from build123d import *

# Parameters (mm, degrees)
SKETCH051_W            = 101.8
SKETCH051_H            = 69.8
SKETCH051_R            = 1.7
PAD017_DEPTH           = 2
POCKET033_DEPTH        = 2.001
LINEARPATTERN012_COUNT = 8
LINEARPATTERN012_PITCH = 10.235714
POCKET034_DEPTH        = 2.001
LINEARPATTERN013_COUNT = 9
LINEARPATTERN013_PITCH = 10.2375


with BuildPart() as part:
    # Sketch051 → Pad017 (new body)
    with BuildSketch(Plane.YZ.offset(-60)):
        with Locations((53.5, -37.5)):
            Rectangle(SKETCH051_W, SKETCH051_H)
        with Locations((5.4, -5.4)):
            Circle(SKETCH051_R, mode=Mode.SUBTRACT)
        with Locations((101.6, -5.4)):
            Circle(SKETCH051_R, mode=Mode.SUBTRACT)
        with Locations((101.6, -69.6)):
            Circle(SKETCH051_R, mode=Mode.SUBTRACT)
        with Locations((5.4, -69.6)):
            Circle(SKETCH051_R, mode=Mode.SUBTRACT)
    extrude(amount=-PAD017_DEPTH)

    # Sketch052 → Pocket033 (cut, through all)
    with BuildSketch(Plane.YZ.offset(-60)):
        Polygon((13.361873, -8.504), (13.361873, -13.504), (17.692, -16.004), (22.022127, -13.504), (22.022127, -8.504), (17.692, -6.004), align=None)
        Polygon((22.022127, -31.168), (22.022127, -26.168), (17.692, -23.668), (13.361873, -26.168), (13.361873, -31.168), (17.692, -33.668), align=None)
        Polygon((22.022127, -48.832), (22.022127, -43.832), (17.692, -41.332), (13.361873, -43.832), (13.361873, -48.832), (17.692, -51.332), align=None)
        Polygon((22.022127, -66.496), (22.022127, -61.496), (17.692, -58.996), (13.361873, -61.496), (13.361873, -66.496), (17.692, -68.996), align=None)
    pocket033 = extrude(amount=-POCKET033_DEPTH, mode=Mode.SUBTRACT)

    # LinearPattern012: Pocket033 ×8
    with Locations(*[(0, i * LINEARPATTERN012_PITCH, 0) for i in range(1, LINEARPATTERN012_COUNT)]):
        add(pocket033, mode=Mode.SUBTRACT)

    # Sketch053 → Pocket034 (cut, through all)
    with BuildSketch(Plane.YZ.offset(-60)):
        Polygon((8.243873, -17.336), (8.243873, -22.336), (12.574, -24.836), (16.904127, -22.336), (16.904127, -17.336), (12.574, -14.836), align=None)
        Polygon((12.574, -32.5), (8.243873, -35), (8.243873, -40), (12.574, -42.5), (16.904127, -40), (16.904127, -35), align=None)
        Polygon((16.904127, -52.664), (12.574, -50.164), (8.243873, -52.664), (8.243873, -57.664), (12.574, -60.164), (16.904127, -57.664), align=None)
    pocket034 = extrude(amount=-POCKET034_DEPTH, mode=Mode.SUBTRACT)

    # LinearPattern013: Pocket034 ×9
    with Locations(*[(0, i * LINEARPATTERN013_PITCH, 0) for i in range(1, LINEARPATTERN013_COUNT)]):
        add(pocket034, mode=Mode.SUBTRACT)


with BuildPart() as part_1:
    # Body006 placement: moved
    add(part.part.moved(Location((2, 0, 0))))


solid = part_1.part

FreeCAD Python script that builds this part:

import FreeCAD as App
import Part
import Sketcher
from FreeCAD import Vector
Q = App.Units.Quantity

doc = App.newDocument("Part")
body = doc.addObject("PartDesign::Body", "Body")

# Sketch on YZ plane
sketch1 = body.newObject("Sketcher::SketchObject", "Sketch")
sketch1.AttachmentSupport = (doc.getObject("YZ_Plane"), [""])
sketch1.MapMode = "FlatFace"
sketch1.AttachmentOffset = App.Placement(Vector(0, 0, -60), App.Rotation())
sketch1.addGeometry(Part.LineSegment(Vector(2.6, -2.6, 0), Vector(2.6, -72.4, 0)), False)
sketch1.addGeometry(Part.LineSegment(Vector(2.6, -72.4, 0), Vector(104.4, -72.4, 0)), False)
sketch1.addGeometry(Part.LineSegment(Vector(104.4, -72.4, 0), Vector(104.4, -2.6, 0)), False)
sketch1.addGeometry(Part.LineSegment(Vector(104.4, -2.6, 0), Vector(2.6, -2.6, 0)), False)
sketch1.addGeometry(Part.Circle(Vector(5.4, -69.6, 0), Vector(0, 0, 1), 1.7), False)
sketch1.addGeometry(Part.Circle(Vector(101.6, -69.6, 0), Vector(0, 0, 1), 1.7), False)
sketch1.addGeometry(Part.Circle(Vector(5.4, -5.4, 0), Vector(0, 0, 1), 1.7), False)
sketch1.addGeometry(Part.Circle(Vector(101.6, -5.4, 0), Vector(0, 0, 1), 1.7), False)
sketch1.addConstraint(Sketcher.Constraint("Coincident", 0, 2, 1, 1))
sketch1.addConstraint(Sketcher.Constraint("Coincident", 1, 2, 2, 1))
sketch1.addConstraint(Sketcher.Constraint("Coincident", 2, 2, 3, 1))
sketch1.addConstraint(Sketcher.Constraint("Coincident", 3, 2, 0, 1))
sketch1.addConstraint(Sketcher.Constraint("Vertical", 0))
sketch1.addConstraint(Sketcher.Constraint("Horizontal", 1))
sketch1.addConstraint(Sketcher.Constraint("Vertical", 2))
sketch1.addConstraint(Sketcher.Constraint("Horizontal", 3))
sketch1.addConstraint(Sketcher.Constraint("Equal", 4, 5))
sketch1.addConstraint(Sketcher.Constraint("Equal", 5, 6))
sketch1.addConstraint(Sketcher.Constraint("Equal", 6, 7))
sketch1.addConstraint(Sketcher.Constraint("Horizontal", 4, 3, 5, 3))
sketch1.addConstraint(Sketcher.Constraint("Horizontal", 6, 3, 7, 3))
sketch1.addConstraint(Sketcher.Constraint("Vertical", 4, 3, 6, 3))
sketch1.addConstraint(Sketcher.Constraint("Vertical", 5, 3, 7, 3))
sketch1.addConstraint(Sketcher.Constraint("Diameter", 4, 3.4))
sketch1.addConstraint(Sketcher.Constraint("DistanceX", 1, 1, 1, 2, 101.8))
sketch1.addConstraint(Sketcher.Constraint("DistanceY", 0, 2, 0, 1, 69.8))
sketch1.addConstraint(Sketcher.Constraint("DistanceY", 0, 2, 6, 3, 67.0))
sketch1.addConstraint(Sketcher.Constraint("DistanceX", 0, 2, 5, 3, 99.0))
sketch1.addConstraint(Sketcher.Constraint("DistanceX", 4, 3, 1, 2, 99.0))
sketch1.addConstraint(Sketcher.Constraint("DistanceY", 5, 3, 2, 2, 67.0))
sketch1.addConstraint(Sketcher.Constraint("DistanceX", -1, 1, 4, 3, 5.4))
sketch1.addConstraint(Sketcher.Constraint("DistanceY", 4, 3, -1, 1, 69.6))
pad1 = body.newObject("PartDesign::Pad", "Pad")
pad1.Profile = sketch1
pad1.Length = 2
pad1.Reversed = True

# Sketch on YZ plane
sketch2 = body.newObject("Sketcher::SketchObject", "Sketch001")
sketch2.AttachmentSupport = (doc.getObject("YZ_Plane"), [""])
sketch2.MapMode = "FlatFace"
sketch2.AttachmentOffset = App.Placement(Vector(0, 0, -60), App.Rotation())
sketch2.addGeometry(Part.LineSegment(Vector(13.4, -8.5, 0), Vector(13.4, -13.5, 0)), False)
sketch2.addGeometry(Part.LineSegment(Vector(13.4, -13.5, 0), Vector(17.7, -16, 0)), False)
sketch2.addGeometry(Part.LineSegment(Vector(17.7, -16, 0), Vector(22, -13.5, 0)), False)
sketch2.addGeometry(Part.LineSegment(Vector(22, -13.5, 0), Vector(22, -8.5, 0)), False)
sketch2.addGeometry(Part.LineSegment(Vector(22, -8.5, 0), Vector(17.7, -6, 0)), False)
sketch2.addGeometry(Part.LineSegment(Vector(17.7, -6, 0), Vector(13.4, -8.5, 0)), False)
sketch2.addGeometry(Part.LineSegment(Vector(22, -31.2, 0), Vector(22, -26.2, 0)), False)
sketch2.addGeometry(Part.LineSegment(Vector(22, -26.2, 0), Vector(17.7, -23.7, 0)), False)
sketch2.addGeometry(Part.LineSegment(Vector(17.7, -23.7, 0), Vector(13.4, -26.2, 0)), False)
sketch2.addGeometry(Part.LineSegment(Vector(13.4, -26.2, 0), Vector(13.4, -31.2, 0)), False)
sketch2.addGeometry(Part.LineSegment(Vector(13.4, -31.2, 0), Vector(17.7, -33.7, 0)), False)
sketch2.addGeometry(Part.LineSegment(Vector(17.7, -33.7, 0), Vector(22, -31.2, 0)), False)
sketch2.addGeometry(Part.LineSegment(Vector(22, -48.8, 0), Vector(22, -43.8, 0)), False)
sketch2.addGeometry(Part.LineSegment(Vector(22, -43.8, 0), Vector(17.7, -41.3, 0)), False)
sketch2.addGeometry(Part.LineSegment(Vector(17.7, -41.3, 0), Vector(13.4, -43.8, 0)), False)
sketch2.addGeometry(Part.LineSegment(Vector(13.4, -43.8, 0), Vector(13.4, -48.8, 0)), False)
sketch2.addGeometry(Part.LineSegment(Vector(13.4, -48.8, 0), Vector(17.7, -51.3, 0)), False)
sketch2.addGeometry(Part.LineSegment(Vector(17.7, -51.3, 0), Vector(22, -48.8, 0)), False)
sketch2.addGeometry(Part.LineSegment(Vector(22, -66.5, 0), Vector(22, -61.5, 0)), False)
sketch2.addGeometry(Part.LineSegment(Vector(22, -61.5, 0), Vector(17.7, -59, 0)), False)
sketch2.addGeometry(Part.LineSegment(Vector(17.7, -59, 0), Vector(13.4, -61.5, 0)), False)
sketch2.addGeometry(Part.LineSegment(Vector(13.4, -61.5, 0), Vector(13.4, -66.5, 0)), False)
sketch2.addGeometry(Part.LineSegment(Vector(13.4, -66.5, 0), Vector(17.7, -69, 0)), False)
sketch2.addGeometry(Part.LineSegment(Vector(17.7, -69, 0), Vector(22, -66.5, 0)), False)
sketch2.addConstraint(Sketcher.Constraint("Coincident", 0, 2, 1, 1))
sketch2.addConstraint(Sketcher.Constraint("Coincident", 1, 2, 2, 1))
sketch2.addConstraint(Sketcher.Constraint("Coincident", 2, 2, 3, 1))
sketch2.addConstraint(Sketcher.Constraint("Coincident", 3, 2, 4, 1))
sketch2.addConstraint(Sketcher.Constraint("Coincident", 4, 2, 5, 1))
sketch2.addConstraint(Sketcher.Constraint("Coincident", 5, 2, 0, 1))
sketch2.addConstraint(Sketcher.Constraint("Coincident", 6, 2, 7, 1))
sketch2.addConstraint(Sketcher.Constraint("Coincident", 7, 2, 8, 1))
sketch2.addConstraint(Sketcher.Constraint("Coincident", 8, 2, 9, 1))
sketch2.addConstraint(Sketcher.Constraint("Coincident", 9, 2, 10, 1))
sketch2.addConstraint(Sketcher.Constraint("Coincident", 10, 2, 11, 1))
sketch2.addConstraint(Sketcher.Constraint("Coincident", 11, 2, 6, 1))
sketch2.addConstraint(Sketcher.Constraint("Coincident", 12, 2, 13, 1))
sketch2.addConstraint(Sketcher.Constraint("Coincident", 13, 2, 14, 1))
sketch2.addConstraint(Sketcher.Constraint("Coincident", 14, 2, 15, 1))
sketch2.addConstraint(Sketcher.Constraint("Coincident", 15, 2, 16, 1))
sketch2.addConstraint(Sketcher.Constraint("Coincident", 16, 2, 17, 1))
sketch2.addConstraint(Sketcher.Constraint("Coincident", 17, 2, 12, 1))
sketch2.addConstraint(Sketcher.Constraint("Coincident", 18, 2, 19, 1))
sketch2.addConstraint(Sketcher.Constraint("Coincident", 19, 2, 20, 1))
sketch2.addConstraint(Sketcher.Constraint("Coincident", 20, 2, 21, 1))
sketch2.addConstraint(Sketcher.Constraint("Coincident", 21, 2, 22, 1))
sketch2.addConstraint(Sketcher.Constraint("Coincident", 22, 2, 23, 1))
sketch2.addConstraint(Sketcher.Constraint("Coincident", 23, 2, 18, 1))
sketch2.addConstraint(Sketcher.Constraint("Vertical", 0))
sketch2.addConstraint(Sketcher.Constraint("Vertical", 3))
sketch2.addConstraint(Sketcher.Constraint("Vertical", 6))
sketch2.addConstraint(Sketcher.Constraint("Vertical", 9))
sketch2.addConstraint(Sketcher.Constraint("Vertical", 12))
sketch2.addConstraint(Sketcher.Constraint("Vertical", 15))
sketch2.addConstraint(Sketcher.Constraint("Vertical", 18))
sketch2.addConstraint(Sketcher.Constraint("Vertical", 21))
sketch2.addConstraint(Sketcher.Constraint("Parallel", 1, 4))
sketch2.addConstraint(Sketcher.Constraint("Parallel", 2, 5))
sketch2.addConstraint(Sketcher.Constraint("Parallel", 4, 7))
sketch2.addConstraint(Sketcher.Constraint("Parallel", 5, 8))
sketch2.addConstraint(Sketcher.Constraint("Parallel", 7, 10))
sketch2.addConstraint(Sketcher.Constraint("Parallel", 8, 11))
sketch2.addConstraint(Sketcher.Constraint("Parallel", 10, 13))
sketch2.addConstraint(Sketcher.Constraint("Parallel", 11, 14))
sketch2.addConstraint(Sketcher.Constraint("Parallel", 13, 16))
sketch2.addConstraint(Sketcher.Constraint("Parallel", 14, 17))
sketch2.addConstraint(Sketcher.Constraint("Parallel", 16, 19))
sketch2.addConstraint(Sketcher.Constraint("Parallel", 17, 20))
sketch2.addConstraint(Sketcher.Constraint("Parallel", 19, 22))
sketch2.addConstraint(Sketcher.Constraint("Parallel", 20, 23))
sketch2.addConstraint(Sketcher.Constraint("Horizontal", 0, 2, 2, 2))
sketch2.addConstraint(Sketcher.Constraint("Horizontal", 3, 2, 5, 2))
sketch2.addConstraint(Sketcher.Constraint("Horizontal", 6, 2, 8, 2))
sketch2.addConstraint(Sketcher.Constraint("Horizontal", 9, 2, 11, 2))
sketch2.addConstraint(Sketcher.Constraint("Horizontal", 12, 2, 14, 2))
sketch2.addConstraint(Sketcher.Constraint("Horizontal", 15, 2, 17, 2))
sketch2.addConstraint(Sketcher.Constraint("Horizontal", 18, 2, 20, 2))
sketch2.addConstraint(Sketcher.Constraint("Horizontal", 21, 2, 23, 2))
sketch2.addConstraint(Sketcher.Constraint("Vertical", 1, 2, 4, 2))
sketch2.addConstraint(Sketcher.Constraint("Vertical", 3, 2, 6, 2))
sketch2.addConstraint(Sketcher.Constraint("Vertical", 4, 2, 7, 2))
sketch2.addConstraint(Sketcher.Constraint("Vertical", 11, 2, 12, 2))
sketch2.addConstraint(Sketcher.Constraint("Vertical", 10, 2, 13, 2))
sketch2.addConstraint(Sketcher.Constraint("Vertical", 17, 2, 18, 2))
sketch2.addConstraint(Sketcher.Constraint("Vertical", 16, 2, 19, 2))
sketch2.addConstraint(Sketcher.Constraint("Equal", 3, 6))
sketch2.addConstraint(Sketcher.Constraint("Equal", 9, 12))
sketch2.addConstraint(Sketcher.Constraint("Equal", 15, 18))
sketch2.addConstraint(Sketcher.Constraint("DistanceY", 0, 2, 0, 1, 5.0))
sketch2.addConstraint(Sketcher.Constraint("Angle", 1, Q("-30 deg")))
sketch2.addConstraint(Sketcher.Constraint("Distance", 1, 5.0))
sketch2.addConstraint(Sketcher.Constraint("DistanceY", 0, 2, -1, 1, 13.504))
sketch2.addConstraint(Sketcher.Constraint("DistanceX", -1, 1, 1, 2, 17.692))
sketch2.addConstraint(Sketcher.Constraint("DistanceY", 6, 2, -1, 1, 26.168))
sketch2.addConstraint(Sketcher.Constraint("DistanceY", 12, 2, -1, 1, 43.832))
sketch2.addConstraint(Sketcher.Constraint("DistanceY", 18, 2, -1, 1, 61.496))
pocket1 = body.newObject("PartDesign::Pocket", "Pocket")
pocket1.Profile = sketch2
pocket1.Type = "ThroughAll"
doc.recompute()

linearpattern = body.newObject("PartDesign::LinearPattern", "LinearPattern")
linearpattern.Originals = [pocket1]
linearpattern.Direction = (doc.getObject("Y_Axis"), [""])
linearpattern.Mode = "offset"
linearpattern.Offset = 10.235714
linearpattern.Occurrences = 8
body.Tip = linearpattern

# Sketch on YZ plane
sketch3 = body.newObject("Sketcher::SketchObject", "Sketch002")
sketch3.AttachmentSupport = (doc.getObject("YZ_Plane"), [""])
sketch3.MapMode = "FlatFace"
sketch3.AttachmentOffset = App.Placement(Vector(0, 0, -60), App.Rotation())
sketch3.addGeometry(Part.LineSegment(Vector(8.2, -17.3, 0), Vector(8.2, -22.3, 0)), False)
sketch3.addGeometry(Part.LineSegment(Vector(8.2, -22.3, 0), Vector(12.6, -24.8, 0)), False)
sketch3.addGeometry(Part.LineSegment(Vector(12.6, -24.8, 0), Vector(16.9, -22.3, 0)), False)
sketch3.addGeometry(Part.LineSegment(Vector(16.9, -22.3, 0), Vector(16.9, -17.3, 0)), False)
sketch3.addGeometry(Part.LineSegment(Vector(16.9, -17.3, 0), Vector(12.6, -14.8, 0)), False)
sketch3.addGeometry(Part.LineSegment(Vector(12.6, -14.8, 0), Vector(8.2, -17.3, 0)), False)
sketch3.addGeometry(Part.LineSegment(Vector(12.6, -32.5, 0), Vector(8.2, -35, 0)), False)
sketch3.addGeometry(Part.LineSegment(Vector(8.2, -35, 0), Vector(8.2, -40, 0)), False)
sketch3.addGeometry(Part.LineSegment(Vector(8.2, -40, 0), Vector(12.6, -42.5, 0)), False)
sketch3.addGeometry(Part.LineSegment(Vector(12.6, -42.5, 0), Vector(16.9, -40, 0)), False)
sketch3.addGeometry(Part.LineSegment(Vector(16.9, -40, 0), Vector(16.9, -35, 0)), False)
sketch3.addGeometry(Part.LineSegment(Vector(16.9, -35, 0), Vector(12.6, -32.5, 0)), False)
sketch3.addGeometry(Part.LineSegment(Vector(16.9, -52.7, 0), Vector(12.6, -50.2, 0)), False)
sketch3.addGeometry(Part.LineSegment(Vector(12.6, -50.2, 0), Vector(8.2, -52.7, 0)), False)
sketch3.addGeometry(Part.LineSegment(Vector(8.2, -52.7, 0), Vector(8.2, -57.7, 0)), False)
sketch3.addGeometry(Part.LineSegment(Vector(8.2, -57.7, 0), Vector(12.6, -60.2, 0)), False)
sketch3.addGeometry(Part.LineSegment(Vector(12.6, -60.2, 0), Vector(16.9, -57.7, 0)), False)
sketch3.addGeometry(Part.LineSegment(Vector(16.9, -57.7, 0), Vector(16.9, -52.7, 0)), False)
sketch3.addConstraint(Sketcher.Constraint("Coincident", 0, 2, 1, 1))
sketch3.addConstraint(Sketcher.Constraint("Coincident", 1, 2, 2, 1))
sketch3.addConstraint(Sketcher.Constraint("Coincident", 2, 2, 3, 1))
sketch3.addConstraint(Sketcher.Constraint("Coincident", 3, 2, 4, 1))
sketch3.addConstraint(Sketcher.Constraint("Coincident", 4, 2, 5, 1))
sketch3.addConstraint(Sketcher.Constraint("Coincident", 5, 2, 0, 1))
sketch3.addConstraint(Sketcher.Constraint("Coincident", 6, 2, 7, 1))
sketch3.addConstraint(Sketcher.Constraint("Coincident", 7, 2, 8, 1))
sketch3.addConstraint(Sketcher.Constraint("Coincident", 8, 2, 9, 1))
sketch3.addConstraint(Sketcher.Constraint("Coincident", 9, 2, 10, 1))
sketch3.addConstraint(Sketcher.Constraint("Coincident", 10, 2, 11, 1))
sketch3.addConstraint(Sketcher.Constraint("Coincident", 11, 2, 6, 1))
sketch3.addConstraint(Sketcher.Constraint("Coincident", 12, 2, 13, 1))
sketch3.addConstraint(Sketcher.Constraint("Coincident", 13, 2, 14, 1))
sketch3.addConstraint(Sketcher.Constraint("Coincident", 14, 2, 15, 1))
sketch3.addConstraint(Sketcher.Constraint("Coincident", 15, 2, 16, 1))
sketch3.addConstraint(Sketcher.Constraint("Coincident", 16, 2, 17, 1))
sketch3.addConstraint(Sketcher.Constraint("Coincident", 17, 2, 12, 1))
sketch3.addConstraint(Sketcher.Constraint("Vertical", 0))
sketch3.addConstraint(Sketcher.Constraint("Vertical", 3))
sketch3.addConstraint(Sketcher.Constraint("Vertical", 7))
sketch3.addConstraint(Sketcher.Constraint("Vertical", 10))
sketch3.addConstraint(Sketcher.Constraint("Vertical", 14))
sketch3.addConstraint(Sketcher.Constraint("Vertical", 17))
sketch3.addConstraint(Sketcher.Constraint("Parallel", 1, 4))
sketch3.addConstraint(Sketcher.Constraint("Parallel", 2, 5))
sketch3.addConstraint(Sketcher.Constraint("Parallel", 5, 6))
sketch3.addConstraint(Sketcher.Constraint("Parallel", 4, 8))
sketch3.addConstraint(Sketcher.Constraint("Parallel", 6, 9))
sketch3.addConstraint(Sketcher.Constraint("Parallel", 8, 11))
sketch3.addConstraint(Sketcher.Constraint("Parallel", 11, 12))
sketch3.addConstraint(Sketcher.Constraint("Parallel", 9, 13))
sketch3.addConstraint(Sketcher.Constraint("Parallel", 12, 15))
sketch3.addConstraint(Sketcher.Constraint("Parallel", 13, 16))
sketch3.addConstraint(Sketcher.Constraint("Horizontal", 0, 2, 2, 2))
sketch3.addConstraint(Sketcher.Constraint("Horizontal", 3, 2, 5, 2))
sketch3.addConstraint(Sketcher.Constraint("Horizontal", 7, 2, 9, 2))
sketch3.addConstraint(Sketcher.Constraint("Horizontal", 6, 2, 10, 2))
sketch3.addConstraint(Sketcher.Constraint("Horizontal", 14, 2, 16, 2))
sketch3.addConstraint(Sketcher.Constraint("Horizontal", 13, 2, 17, 2))
sketch3.addConstraint(Sketcher.Constraint("Vertical", 1, 2, 4, 2))
sketch3.addConstraint(Sketcher.Constraint("Vertical", 5, 2, 6, 2))
sketch3.addConstraint(Sketcher.Constraint("Vertical", 4, 2, 8, 2))
sketch3.addConstraint(Sketcher.Constraint("Vertical", 11, 2, 12, 2))
sketch3.addConstraint(Sketcher.Constraint("Vertical", 7, 2, 13, 2))
sketch3.addConstraint(Sketcher.Constraint("Equal", 3, 7))
sketch3.addConstraint(Sketcher.Constraint("Equal", 10, 14))
sketch3.addConstraint(Sketcher.Constraint("DistanceY", 0, 2, 0, 1, 5.0))
sketch3.addConstraint(Sketcher.Constraint("Angle", 1, Q("-30 deg")))
sketch3.addConstraint(Sketcher.Constraint("Distance", 1, 5.0))
sketch3.addConstraint(Sketcher.Constraint("DistanceY", 6, 2, -1, 1, 35.0))
sketch3.addConstraint(Sketcher.Constraint("DistanceY", 0, 2, -1, 1, 22.336))
sketch3.addConstraint(Sketcher.Constraint("DistanceX", -1, 1, 1, 2, 12.574))
sketch3.addConstraint(Sketcher.Constraint("DistanceY", 12, 2, -1, 1, 50.164))
pocket2 = body.newObject("PartDesign::Pocket", "Pocket001")
pocket2.Profile = sketch3
pocket2.Type = "ThroughAll"
doc.recompute()

linearpattern2 = body.newObject("PartDesign::LinearPattern", "LinearPattern001")
linearpattern2.Originals = [pocket2]
linearpattern2.Direction = (doc.getObject("Y_Axis"), [""])
linearpattern2.Mode = "offset"
linearpattern2.Offset = 10.2375
linearpattern2.Occurrences = 9
body.Tip = linearpattern2
body2 = doc.addObject("PartDesign::Body", "Body001")
doc.recompute()

body.Placement = App.Placement(Vector(2, 0, 0), App.Rotation(Vector(0, 0, 1), 0))
boolean = body2.newObject("PartDesign::Boolean", "Boolean")
boolean.Type = "Fuse"
boolean.addObjects([body])

doc.recompute()
